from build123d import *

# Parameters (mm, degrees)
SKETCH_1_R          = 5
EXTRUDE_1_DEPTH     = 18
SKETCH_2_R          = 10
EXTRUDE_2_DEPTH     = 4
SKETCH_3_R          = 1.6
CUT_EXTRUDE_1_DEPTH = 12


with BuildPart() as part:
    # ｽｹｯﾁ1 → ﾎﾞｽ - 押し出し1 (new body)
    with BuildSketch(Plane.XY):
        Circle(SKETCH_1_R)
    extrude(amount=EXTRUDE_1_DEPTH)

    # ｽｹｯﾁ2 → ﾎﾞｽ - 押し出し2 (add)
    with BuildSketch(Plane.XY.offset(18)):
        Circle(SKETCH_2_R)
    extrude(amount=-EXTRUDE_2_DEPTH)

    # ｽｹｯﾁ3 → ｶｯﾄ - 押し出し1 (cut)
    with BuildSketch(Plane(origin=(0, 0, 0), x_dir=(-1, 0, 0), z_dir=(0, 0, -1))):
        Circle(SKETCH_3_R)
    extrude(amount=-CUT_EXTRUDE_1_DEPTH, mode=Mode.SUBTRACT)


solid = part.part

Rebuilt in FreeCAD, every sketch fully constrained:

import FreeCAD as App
import Part
import Sketcher
Q = App.Units.Quantity

doc = App.newDocument("Part")
params = doc.addObject("Spreadsheet::Sheet", "Params")
for row, (alias, value) in enumerate([
    ("sketch1_diameter", "10 mm"),
    ("pad1_length", "18 mm"),
    ("sketch2_diameter", "20 mm"),
    ("pad2_length", "4 mm"),
    ("sketch3_diameter", "3.2 mm"),
    ("pocket1_length", "12 mm"),
], start=1):
    params.set(f"A{row}", alias)
    params.set(f"B{row}", "=" + value)
    params.setAlias(f"B{row}", alias)

body = doc.addObject("PartDesign::Body", "Body")

# Sketch on XY plane
sketch1 = body.newObject("Sketcher::SketchObject", "Sketch")
sketch1.AttachmentSupport = (doc.getObject("XY_Plane"), [""])
sketch1.MapMode = "FlatFace"
sketch1.addGeometry(Part.Circle(App.Vector(0, 0, 0), App.Vector(0, 0, 1), 5), False)
sketch1.addConstraint([
    Sketcher.Constraint("Coincident", 0, 3, -1, 1),
    Sketcher.Constraint("Diameter", 0, Q("10 mm")),
])
sketch1.setExpression("Constraints[1]", "Params.sketch1_diameter")
pad1 = body.newObject("PartDesign::Pad", "Pad")
pad1.Profile = sketch1
pad1.setExpression("Length", "Params.pad1_length")

# Sketch on XY plane
sketch2 = body.newObject("Sketcher::SketchObject", "Sketch001")
sketch2.AttachmentSupport = (doc.getObject("XY_Plane"), [""])
sketch2.MapMode = "FlatFace"
sketch2.AttachmentOffset = App.Placement(App.Vector(0, 0, 18), App.Rotation())
sketch2.addGeometry(Part.Circle(App.Vector(0, 0, 0), App.Vector(0, 0, 1), 10), False)
sketch2.addConstraint([
    Sketcher.Constraint("Coincident", 0, 3, -1, 1),
    Sketcher.Constraint("Diameter", 0, Q("20 mm")),
])
sketch2.setExpression("Constraints[1]", "Params.sketch2_diameter")
pad2 = body.newObject("PartDesign::Pad", "Pad001")
pad2.Profile = sketch2
pad2.setExpression("Length", "Params.pad2_length")
pad2.Reversed = True

# Sketch on XY plane
sketch3 = body.newObject("Sketcher::SketchObject", "Sketch002")
sketch3.AttachmentSupport = (doc.getObject("XY_Plane"), [""])
sketch3.MapMode = "FlatFace"
sketch3.addGeometry(Part.Circle(App.Vector(0, 0, 0), App.Vector(0, 0, 1), 1.6), False)
sketch3.addConstraint([
    Sketcher.Constraint("Coincident", 0, 3, -1, 1),
    Sketcher.Constraint("Diameter", 0, Q("3.2 mm")),
])
sketch3.setExpression("Constraints[1]", "Params.sketch3_diameter")
pocket1 = body.newObject("PartDesign::Pocket", "Pocket")
pocket1.Profile = sketch3
pocket1.setExpression("Length", "Params.pocket1_length")
pocket1.Reversed = True

doc.recompute()
